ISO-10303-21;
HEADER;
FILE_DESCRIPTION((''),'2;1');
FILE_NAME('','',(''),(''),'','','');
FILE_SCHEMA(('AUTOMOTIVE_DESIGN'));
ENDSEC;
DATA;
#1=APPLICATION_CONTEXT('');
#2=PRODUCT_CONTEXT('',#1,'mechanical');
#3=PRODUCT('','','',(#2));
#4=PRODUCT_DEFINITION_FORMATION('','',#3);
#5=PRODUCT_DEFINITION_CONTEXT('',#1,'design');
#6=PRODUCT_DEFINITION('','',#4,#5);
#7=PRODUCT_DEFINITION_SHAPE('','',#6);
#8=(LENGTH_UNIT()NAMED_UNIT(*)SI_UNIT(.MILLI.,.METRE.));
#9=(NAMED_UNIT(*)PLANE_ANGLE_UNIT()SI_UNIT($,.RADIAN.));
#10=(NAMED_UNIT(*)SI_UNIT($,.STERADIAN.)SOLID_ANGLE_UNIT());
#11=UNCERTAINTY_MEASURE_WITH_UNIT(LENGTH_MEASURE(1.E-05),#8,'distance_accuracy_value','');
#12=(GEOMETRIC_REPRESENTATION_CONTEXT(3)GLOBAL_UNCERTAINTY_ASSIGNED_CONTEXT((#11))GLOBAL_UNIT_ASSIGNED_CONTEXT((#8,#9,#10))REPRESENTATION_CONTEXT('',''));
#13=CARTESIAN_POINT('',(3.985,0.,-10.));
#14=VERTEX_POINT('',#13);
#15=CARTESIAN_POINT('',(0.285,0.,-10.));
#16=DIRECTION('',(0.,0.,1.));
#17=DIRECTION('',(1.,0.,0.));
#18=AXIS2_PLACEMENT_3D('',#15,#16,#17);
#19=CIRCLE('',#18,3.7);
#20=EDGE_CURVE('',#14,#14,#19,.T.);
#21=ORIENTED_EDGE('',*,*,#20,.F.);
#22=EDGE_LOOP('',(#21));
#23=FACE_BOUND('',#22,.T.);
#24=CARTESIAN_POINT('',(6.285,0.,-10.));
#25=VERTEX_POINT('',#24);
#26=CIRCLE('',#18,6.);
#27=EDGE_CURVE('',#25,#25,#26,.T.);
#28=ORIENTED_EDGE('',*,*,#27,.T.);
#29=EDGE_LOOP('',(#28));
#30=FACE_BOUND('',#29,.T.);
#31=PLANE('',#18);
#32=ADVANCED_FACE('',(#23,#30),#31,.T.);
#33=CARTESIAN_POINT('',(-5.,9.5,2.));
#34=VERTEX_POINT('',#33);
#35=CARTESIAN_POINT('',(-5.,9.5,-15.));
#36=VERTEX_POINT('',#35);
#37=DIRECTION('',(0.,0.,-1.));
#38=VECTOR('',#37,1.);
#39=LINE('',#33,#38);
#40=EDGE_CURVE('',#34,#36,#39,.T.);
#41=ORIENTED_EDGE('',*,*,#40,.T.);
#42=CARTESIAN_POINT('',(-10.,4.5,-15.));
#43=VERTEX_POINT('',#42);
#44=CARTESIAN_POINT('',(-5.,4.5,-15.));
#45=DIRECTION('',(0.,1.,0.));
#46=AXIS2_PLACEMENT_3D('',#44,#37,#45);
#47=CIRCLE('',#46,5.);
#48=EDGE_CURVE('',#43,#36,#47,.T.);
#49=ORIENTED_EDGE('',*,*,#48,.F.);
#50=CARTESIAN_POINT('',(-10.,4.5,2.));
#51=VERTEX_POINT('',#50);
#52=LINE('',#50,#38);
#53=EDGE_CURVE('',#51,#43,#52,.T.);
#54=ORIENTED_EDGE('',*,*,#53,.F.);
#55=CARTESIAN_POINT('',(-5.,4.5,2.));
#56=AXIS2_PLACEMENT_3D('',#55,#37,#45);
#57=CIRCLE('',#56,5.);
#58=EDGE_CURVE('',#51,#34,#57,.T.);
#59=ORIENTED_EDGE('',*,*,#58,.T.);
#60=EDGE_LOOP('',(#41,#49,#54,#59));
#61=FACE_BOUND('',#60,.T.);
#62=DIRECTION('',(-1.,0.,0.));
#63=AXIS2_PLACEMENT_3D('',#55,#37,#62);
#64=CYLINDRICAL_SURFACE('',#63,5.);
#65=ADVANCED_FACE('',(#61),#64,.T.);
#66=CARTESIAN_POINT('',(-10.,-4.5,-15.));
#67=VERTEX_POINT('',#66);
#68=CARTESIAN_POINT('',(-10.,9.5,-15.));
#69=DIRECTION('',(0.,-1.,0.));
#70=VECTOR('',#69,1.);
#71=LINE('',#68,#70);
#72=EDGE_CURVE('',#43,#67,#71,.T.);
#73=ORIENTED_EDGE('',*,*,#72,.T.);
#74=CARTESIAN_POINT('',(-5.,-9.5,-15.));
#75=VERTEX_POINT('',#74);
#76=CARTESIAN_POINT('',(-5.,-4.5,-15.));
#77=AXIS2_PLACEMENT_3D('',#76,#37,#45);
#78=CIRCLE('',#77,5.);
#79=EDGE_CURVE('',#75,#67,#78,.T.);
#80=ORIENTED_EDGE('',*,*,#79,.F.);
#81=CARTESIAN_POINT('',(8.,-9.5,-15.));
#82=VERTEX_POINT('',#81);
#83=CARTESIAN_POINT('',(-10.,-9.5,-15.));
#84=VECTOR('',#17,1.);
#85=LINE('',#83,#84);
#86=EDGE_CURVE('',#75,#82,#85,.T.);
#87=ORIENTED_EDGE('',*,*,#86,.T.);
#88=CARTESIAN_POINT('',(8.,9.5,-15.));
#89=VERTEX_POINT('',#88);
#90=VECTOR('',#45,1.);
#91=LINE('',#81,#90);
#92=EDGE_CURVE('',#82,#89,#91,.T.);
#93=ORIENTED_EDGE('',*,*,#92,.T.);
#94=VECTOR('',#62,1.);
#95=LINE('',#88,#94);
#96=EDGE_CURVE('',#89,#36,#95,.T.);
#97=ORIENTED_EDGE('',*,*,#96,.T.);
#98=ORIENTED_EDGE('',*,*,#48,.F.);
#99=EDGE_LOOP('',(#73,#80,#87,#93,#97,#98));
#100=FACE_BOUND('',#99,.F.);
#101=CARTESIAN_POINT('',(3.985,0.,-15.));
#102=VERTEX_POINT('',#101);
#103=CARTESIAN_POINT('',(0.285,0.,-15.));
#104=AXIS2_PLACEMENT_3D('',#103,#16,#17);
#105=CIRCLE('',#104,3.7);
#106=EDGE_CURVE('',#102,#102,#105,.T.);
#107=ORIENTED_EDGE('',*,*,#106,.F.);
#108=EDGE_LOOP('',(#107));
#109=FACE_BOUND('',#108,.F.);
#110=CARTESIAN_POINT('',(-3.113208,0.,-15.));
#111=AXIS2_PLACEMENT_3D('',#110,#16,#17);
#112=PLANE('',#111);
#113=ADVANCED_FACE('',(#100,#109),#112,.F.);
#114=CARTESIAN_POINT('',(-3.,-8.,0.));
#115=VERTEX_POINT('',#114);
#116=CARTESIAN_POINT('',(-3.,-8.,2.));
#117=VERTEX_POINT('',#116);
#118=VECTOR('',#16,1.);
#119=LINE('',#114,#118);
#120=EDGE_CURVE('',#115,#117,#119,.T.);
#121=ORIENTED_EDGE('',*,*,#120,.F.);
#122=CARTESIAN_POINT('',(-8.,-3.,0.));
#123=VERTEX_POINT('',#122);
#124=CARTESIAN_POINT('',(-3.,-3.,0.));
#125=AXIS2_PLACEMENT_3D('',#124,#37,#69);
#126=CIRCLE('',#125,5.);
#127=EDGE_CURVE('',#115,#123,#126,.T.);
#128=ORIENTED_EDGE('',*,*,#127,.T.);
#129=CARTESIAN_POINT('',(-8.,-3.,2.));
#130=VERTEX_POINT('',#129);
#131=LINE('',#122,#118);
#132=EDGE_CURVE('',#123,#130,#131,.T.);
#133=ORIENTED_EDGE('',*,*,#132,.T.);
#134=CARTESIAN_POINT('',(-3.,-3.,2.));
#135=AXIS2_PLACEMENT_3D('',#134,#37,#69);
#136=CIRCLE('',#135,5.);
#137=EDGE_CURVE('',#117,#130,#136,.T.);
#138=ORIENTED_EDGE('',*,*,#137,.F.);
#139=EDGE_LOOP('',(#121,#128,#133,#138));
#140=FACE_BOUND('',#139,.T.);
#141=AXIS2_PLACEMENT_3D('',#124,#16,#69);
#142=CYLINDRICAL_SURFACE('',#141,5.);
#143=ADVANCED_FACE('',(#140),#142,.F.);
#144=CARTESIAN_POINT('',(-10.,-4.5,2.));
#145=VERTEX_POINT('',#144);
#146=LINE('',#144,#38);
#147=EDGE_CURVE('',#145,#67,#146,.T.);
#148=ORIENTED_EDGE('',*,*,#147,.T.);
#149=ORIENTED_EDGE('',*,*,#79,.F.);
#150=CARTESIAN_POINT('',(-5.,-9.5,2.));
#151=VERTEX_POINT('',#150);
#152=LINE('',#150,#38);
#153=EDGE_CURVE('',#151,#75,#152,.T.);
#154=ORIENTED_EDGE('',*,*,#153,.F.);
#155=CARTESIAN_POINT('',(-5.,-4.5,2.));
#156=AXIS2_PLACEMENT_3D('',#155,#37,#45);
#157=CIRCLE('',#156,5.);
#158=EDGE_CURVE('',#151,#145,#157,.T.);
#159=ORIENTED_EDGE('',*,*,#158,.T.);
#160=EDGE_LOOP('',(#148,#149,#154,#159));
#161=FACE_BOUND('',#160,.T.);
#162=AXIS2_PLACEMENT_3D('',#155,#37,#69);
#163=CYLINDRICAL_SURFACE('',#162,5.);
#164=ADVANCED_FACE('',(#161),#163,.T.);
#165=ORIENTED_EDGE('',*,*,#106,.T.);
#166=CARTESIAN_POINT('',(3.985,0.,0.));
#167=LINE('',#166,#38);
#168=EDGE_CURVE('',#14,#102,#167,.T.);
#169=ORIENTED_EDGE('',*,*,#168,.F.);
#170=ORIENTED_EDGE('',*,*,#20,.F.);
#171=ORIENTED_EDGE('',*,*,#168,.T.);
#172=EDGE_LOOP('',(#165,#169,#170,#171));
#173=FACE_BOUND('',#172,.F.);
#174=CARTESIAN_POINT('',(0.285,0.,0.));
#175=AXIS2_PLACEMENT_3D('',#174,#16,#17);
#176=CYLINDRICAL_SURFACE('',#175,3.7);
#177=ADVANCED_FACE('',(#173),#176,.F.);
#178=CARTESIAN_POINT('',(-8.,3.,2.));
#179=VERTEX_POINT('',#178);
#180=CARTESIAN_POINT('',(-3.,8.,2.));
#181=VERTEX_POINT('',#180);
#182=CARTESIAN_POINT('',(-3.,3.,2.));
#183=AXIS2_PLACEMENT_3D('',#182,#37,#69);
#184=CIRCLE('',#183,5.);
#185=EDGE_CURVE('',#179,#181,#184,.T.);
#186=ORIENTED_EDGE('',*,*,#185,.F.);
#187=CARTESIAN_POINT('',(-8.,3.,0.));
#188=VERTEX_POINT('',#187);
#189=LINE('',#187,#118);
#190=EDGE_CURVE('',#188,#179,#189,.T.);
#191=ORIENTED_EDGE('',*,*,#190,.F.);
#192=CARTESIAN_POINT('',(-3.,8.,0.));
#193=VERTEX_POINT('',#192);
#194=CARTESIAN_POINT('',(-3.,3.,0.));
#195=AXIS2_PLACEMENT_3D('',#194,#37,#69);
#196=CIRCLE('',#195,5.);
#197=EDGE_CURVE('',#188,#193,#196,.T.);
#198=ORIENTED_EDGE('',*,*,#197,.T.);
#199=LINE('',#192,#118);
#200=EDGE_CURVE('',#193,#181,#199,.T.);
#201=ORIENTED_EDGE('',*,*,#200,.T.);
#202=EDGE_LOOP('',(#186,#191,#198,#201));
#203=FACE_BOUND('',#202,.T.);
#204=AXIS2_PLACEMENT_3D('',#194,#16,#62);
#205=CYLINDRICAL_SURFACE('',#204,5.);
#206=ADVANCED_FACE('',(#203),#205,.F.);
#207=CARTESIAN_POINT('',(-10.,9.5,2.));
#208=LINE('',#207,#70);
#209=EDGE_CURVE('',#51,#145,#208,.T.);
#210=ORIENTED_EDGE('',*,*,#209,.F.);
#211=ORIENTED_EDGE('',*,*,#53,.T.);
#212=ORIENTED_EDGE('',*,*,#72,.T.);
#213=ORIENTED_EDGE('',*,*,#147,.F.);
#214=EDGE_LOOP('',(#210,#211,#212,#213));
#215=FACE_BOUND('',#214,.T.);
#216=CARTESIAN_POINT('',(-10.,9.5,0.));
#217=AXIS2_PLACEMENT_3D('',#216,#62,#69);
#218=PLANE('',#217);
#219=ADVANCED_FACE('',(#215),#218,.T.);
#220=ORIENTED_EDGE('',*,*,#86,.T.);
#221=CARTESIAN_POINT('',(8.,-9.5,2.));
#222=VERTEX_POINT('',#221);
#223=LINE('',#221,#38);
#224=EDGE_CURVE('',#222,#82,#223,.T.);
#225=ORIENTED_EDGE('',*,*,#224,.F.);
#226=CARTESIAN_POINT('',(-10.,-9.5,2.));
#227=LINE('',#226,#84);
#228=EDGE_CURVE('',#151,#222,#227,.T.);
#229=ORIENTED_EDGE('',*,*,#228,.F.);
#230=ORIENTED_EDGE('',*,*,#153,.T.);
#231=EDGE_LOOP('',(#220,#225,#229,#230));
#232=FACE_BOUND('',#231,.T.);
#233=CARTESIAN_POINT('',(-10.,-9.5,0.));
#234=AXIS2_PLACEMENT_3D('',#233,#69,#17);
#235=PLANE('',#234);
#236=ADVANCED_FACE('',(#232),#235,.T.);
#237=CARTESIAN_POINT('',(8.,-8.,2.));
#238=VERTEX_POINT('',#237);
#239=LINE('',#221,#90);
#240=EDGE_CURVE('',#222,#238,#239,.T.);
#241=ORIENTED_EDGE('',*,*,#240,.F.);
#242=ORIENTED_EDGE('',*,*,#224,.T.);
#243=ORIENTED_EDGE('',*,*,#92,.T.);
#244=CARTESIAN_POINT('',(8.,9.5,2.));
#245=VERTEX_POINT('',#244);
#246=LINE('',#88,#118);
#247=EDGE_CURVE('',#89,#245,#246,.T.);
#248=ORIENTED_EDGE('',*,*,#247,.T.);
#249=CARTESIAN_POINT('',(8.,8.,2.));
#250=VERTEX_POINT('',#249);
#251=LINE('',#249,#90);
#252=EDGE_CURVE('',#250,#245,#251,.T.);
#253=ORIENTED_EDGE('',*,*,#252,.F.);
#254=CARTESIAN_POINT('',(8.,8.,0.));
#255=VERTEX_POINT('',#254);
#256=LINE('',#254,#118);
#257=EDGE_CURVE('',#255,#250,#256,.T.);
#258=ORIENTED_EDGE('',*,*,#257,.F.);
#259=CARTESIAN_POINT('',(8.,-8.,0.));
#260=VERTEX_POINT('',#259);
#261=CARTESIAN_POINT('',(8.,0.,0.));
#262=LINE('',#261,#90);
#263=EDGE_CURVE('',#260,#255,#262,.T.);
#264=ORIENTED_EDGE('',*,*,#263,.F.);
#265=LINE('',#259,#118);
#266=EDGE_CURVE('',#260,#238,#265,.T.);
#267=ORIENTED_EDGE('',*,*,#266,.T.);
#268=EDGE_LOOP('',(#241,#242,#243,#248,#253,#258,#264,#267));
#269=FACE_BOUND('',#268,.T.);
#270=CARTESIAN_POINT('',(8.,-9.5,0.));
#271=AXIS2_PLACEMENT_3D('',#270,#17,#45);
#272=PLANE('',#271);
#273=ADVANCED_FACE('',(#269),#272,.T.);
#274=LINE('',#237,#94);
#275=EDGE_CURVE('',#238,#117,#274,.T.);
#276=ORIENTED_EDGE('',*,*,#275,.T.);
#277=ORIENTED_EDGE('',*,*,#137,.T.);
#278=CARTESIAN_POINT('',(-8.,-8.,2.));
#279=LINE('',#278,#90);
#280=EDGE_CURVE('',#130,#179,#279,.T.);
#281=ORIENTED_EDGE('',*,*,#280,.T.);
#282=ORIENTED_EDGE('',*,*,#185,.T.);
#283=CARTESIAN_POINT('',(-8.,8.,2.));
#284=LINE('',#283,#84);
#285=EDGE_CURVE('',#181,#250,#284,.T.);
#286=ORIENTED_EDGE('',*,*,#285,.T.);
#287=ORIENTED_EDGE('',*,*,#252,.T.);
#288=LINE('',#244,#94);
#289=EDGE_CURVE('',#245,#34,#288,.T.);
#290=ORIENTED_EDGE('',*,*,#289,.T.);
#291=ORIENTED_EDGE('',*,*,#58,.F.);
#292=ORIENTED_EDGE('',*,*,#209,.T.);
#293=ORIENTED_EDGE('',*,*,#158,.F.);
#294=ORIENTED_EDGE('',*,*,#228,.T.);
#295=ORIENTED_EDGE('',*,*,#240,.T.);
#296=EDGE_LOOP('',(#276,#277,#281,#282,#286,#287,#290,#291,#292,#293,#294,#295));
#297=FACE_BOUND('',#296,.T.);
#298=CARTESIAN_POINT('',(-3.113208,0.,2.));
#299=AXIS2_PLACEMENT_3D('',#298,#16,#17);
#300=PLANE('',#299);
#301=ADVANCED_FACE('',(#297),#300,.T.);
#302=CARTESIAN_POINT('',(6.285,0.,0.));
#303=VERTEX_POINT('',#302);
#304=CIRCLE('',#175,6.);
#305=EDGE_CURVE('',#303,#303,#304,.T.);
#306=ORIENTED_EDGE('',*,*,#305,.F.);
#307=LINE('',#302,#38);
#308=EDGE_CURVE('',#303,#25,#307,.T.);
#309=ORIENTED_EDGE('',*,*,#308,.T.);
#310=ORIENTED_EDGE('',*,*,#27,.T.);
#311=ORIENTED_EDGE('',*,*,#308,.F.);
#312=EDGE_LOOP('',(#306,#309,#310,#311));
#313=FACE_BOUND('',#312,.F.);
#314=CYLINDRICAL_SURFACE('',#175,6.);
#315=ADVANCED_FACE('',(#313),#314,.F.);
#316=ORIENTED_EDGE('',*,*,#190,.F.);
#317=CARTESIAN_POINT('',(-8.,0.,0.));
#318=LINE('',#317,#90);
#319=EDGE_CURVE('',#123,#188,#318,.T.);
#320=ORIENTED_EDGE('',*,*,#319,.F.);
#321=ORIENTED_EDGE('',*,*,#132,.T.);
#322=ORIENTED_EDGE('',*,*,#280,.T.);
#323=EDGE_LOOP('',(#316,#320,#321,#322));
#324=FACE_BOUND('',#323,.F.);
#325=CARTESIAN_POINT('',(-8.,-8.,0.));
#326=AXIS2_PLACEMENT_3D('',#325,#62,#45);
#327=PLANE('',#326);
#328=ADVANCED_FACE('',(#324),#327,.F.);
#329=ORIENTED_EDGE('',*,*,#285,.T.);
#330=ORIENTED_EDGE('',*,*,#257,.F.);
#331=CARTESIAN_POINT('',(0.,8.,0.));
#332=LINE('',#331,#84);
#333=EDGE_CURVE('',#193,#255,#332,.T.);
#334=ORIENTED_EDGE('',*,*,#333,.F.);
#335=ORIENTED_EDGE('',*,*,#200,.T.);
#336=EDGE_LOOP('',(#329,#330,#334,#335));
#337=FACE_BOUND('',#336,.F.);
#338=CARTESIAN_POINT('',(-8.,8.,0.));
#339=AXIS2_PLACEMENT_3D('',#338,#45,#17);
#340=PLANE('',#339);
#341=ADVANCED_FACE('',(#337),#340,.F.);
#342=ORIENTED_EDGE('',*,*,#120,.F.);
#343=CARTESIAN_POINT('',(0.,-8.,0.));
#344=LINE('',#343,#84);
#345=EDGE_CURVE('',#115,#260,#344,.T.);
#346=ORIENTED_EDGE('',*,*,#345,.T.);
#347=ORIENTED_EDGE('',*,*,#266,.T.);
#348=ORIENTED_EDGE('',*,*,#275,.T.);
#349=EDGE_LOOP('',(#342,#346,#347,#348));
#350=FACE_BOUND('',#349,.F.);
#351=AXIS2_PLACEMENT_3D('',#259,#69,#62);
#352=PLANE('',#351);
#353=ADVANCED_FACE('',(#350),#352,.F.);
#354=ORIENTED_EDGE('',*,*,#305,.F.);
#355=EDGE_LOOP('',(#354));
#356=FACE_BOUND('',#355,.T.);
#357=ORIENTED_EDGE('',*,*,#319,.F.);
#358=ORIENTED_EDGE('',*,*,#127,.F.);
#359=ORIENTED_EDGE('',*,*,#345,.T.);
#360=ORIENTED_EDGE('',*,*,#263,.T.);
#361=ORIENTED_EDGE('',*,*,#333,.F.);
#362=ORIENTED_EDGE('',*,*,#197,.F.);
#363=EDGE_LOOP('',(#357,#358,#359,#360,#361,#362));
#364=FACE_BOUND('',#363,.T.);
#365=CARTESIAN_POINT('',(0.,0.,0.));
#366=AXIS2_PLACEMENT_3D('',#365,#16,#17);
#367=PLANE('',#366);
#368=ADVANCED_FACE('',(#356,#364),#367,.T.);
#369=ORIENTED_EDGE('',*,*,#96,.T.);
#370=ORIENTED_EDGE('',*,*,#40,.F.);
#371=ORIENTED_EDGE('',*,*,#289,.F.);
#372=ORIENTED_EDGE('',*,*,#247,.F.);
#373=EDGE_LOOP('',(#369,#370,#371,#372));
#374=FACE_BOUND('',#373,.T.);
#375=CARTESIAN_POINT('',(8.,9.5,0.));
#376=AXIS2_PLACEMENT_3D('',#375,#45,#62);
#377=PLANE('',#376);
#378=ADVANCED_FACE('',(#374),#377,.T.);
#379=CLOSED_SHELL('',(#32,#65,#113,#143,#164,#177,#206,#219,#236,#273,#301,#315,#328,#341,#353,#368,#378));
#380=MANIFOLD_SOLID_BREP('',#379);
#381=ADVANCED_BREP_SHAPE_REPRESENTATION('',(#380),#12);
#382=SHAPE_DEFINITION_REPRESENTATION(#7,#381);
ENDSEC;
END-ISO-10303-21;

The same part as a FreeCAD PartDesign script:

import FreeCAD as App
import Part
import Sketcher
from FreeCAD import Vector


def edges_at(feature, points):
    """Names of the edges that pass closest to the given points."""
    edges = feature.Shape.Edges
    near = lambda p: min(range(len(edges)), key=lambda i: edges[i].distToShape(Part.Vertex(*p))[0])
    return sorted({f"Edge{near(p) + 1}" for p in points})

doc = App.newDocument("Part")
params = doc.addObject("Spreadsheet::Sheet", "Params")
for row, (alias, value) in enumerate([
    ("sketch1_diameter", "7.4 mm"),
    ("sketch1_width", "16 mm"),
    ("pad1_length", "15 mm"),
    ("sketch2_width", "16 mm"),
    ("sketch2_width2", "18 mm"),
    ("sketch2_height", "19 mm"),
    ("pad2_length", "2 mm"),
    ("pad2_length2", "15 mm"),
    ("fillet_radius", "5 mm"),
    ("sketch3_diameter", "12 mm"),
    ("sketch3_diameter2", "7.4 mm"),
    ("pocket1_length", "10 mm"),
], start=1):
    params.set(f"A{row}", alias)
    params.set(f"B{row}", "=" + value)
    params.setAlias(f"B{row}", alias)

body = doc.addObject("PartDesign::Body", "Body")

# Sketch on XY plane
sketch1 = doc.addObject("Sketcher::SketchObject", "Sketch")
body.addObject(sketch1)
sketch1.AttachmentSupport = (doc.XY_Plane, [""])
sketch1.MapMode = "FlatFace"
sketch1.addGeometry([
    Part.LineSegment(Vector(-8, 8, 0), Vector(-8, -8, 0)),  # 0
    Part.LineSegment(Vector(-8, -8, 0), Vector(8, -8, 0)),  # 1
    Part.LineSegment(Vector(8, -8, 0), Vector(8, 8, 0)),  # 2
    Part.LineSegment(Vector(8, 8, 0), Vector(-8, 8, 0)),  # 3
    Part.Circle(Vector(0.3, 0, 0), Vector(0, 0, 1), 3.7),  # 4
], False)
sketch1.addConstraint([
    Sketcher.Constraint("Coincident", 0, 2, 1, 1),
    Sketcher.Constraint("Coincident", 1, 2, 2, 1),
    Sketcher.Constraint("Coincident", 2, 2, 3, 1),
    Sketcher.Constraint("Coincident", 3, 2, 0, 1),
    Sketcher.Constraint("Vertical", 0),
    Sketcher.Constraint("Horizontal", 1),
    Sketcher.Constraint("Vertical", 2),
    Sketcher.Constraint("Horizontal", 3),
    Sketcher.Constraint("Symmetric", 0, 2, 2, 2, -1, 1),
    Sketcher.Constraint("PointOnObject", 4, 3, -1),
    Sketcher.Constraint("Equal", 3, 0),
    Sketcher.Constraint("Diameter", 4, 7.4),
    Sketcher.Constraint("DistanceX", 1, 1, 1, 2, 16.0),
    Sketcher.Constraint("DistanceX", -1, 1, 4, 3, 0.285),
])
sketch1.setExpression("Constraints[11]", "Params.sketch1_diameter")
sketch1.setExpression("Constraints[12]", "Params.sketch1_width")
pad1 = doc.addObject("PartDesign::Pad", "Pad")
body.addObject(pad1)
pad1.Profile = sketch1
pad1.setExpression("Length", "Params.pad1_length")
pad1.Reversed = True

# Sketch on XY plane
sketch2 = doc.addObject("Sketcher::SketchObject", "Sketch001")
body.addObject(sketch2)
sketch2.AttachmentSupport = (doc.XY_Plane, [""])
sketch2.MapMode = "FlatFace"
sketch2.addGeometry([
    Part.LineSegment(Vector(8, -9.5, 0), Vector(8, -8, 0)),  # 0
    Part.LineSegment(Vector(8, -8, 0), Vector(-8, -8, 0)),  # 1
    Part.LineSegment(Vector(-8, -8, 0), Vector(-8, 8, 0)),  # 2
    Part.LineSegment(Vector(-8, 8, 0), Vector(8, 8, 0)),  # 3
    Part.LineSegment(Vector(8, 8, 0), Vector(8, 9.5, 0)),  # 4
    Part.LineSegment(Vector(8, 9.5, 0), Vector(-10, 9.5, 0)),  # 5
    Part.LineSegment(Vector(-10, 9.5, 0), Vector(-10, -9.5, 0)),  # 6
    Part.LineSegment(Vector(-10, -9.5, 0), Vector(8, -9.5, 0)),  # 7
], False)
sketch2.addConstraint([
    Sketcher.Constraint("Coincident", 0, 2, 1, 1),
    Sketcher.Constraint("Coincident", 1, 2, 2, 1),
    Sketcher.Constraint("Coincident", 2, 2, 3, 1),
    Sketcher.Constraint("Coincident", 3, 2, 4, 1),
    Sketcher.Constraint("Coincident", 4, 2, 5, 1),
    Sketcher.Constraint("Coincident", 5, 2, 6, 1),
    Sketcher.Constraint("Coincident", 6, 2, 7, 1),
    Sketcher.Constraint("Coincident", 7, 2, 0, 1),
    Sketcher.Constraint("Vertical", 0),
    Sketcher.Constraint("Horizontal", 1),
    Sketcher.Constraint("Vertical", 2),
    Sketcher.Constraint("Horizontal", 3),
    Sketcher.Constraint("Vertical", 4),
    Sketcher.Constraint("Horizontal", 5),
    Sketcher.Constraint("Vertical", 6),
    Sketcher.Constraint("Horizontal", 7),
    Sketcher.Constraint("Symmetric", 0, 2, 2, 2, -1, 1),
    Sketcher.Constraint("Symmetric", 4, 2, 7, 2, -1),
    Sketcher.Constraint("Equal", 3, 2),
    Sketcher.Constraint("DistanceX", 1, 2, 1, 1, 16.0),
    Sketcher.Constraint("DistanceX", 5, 2, 5, 1, 18.0),
    Sketcher.Constraint("DistanceY", 6, 2, 6, 1, 19.0),
])
sketch2.setExpression("Constraints[19]", "Params.sketch2_width")
sketch2.setExpression("Constraints[20]", "Params.sketch2_width2")
sketch2.setExpression("Constraints[21]", "Params.sketch2_height")
pad2 = doc.addObject("PartDesign::Pad", "Pad001")
body.addObject(pad2)
pad2.Profile = sketch2
pad2.Type = "TwoLengths"
pad2.setExpression("Length", "Params.pad2_length")
pad2.setExpression("Length2", "Params.pad2_length2")
doc.recompute()

fillet = doc.addObject("PartDesign::Fillet", "Fillet")
body.addObject(fillet)
fillet.Base = (pad2, edges_at(pad2, [
    (-8, 8, 1),
    (-8, -8, 1),
    (-10, 9.5, -6.5),
    (-10, -9.5, -6.5),
]))
fillet.setExpression("Radius", "Params.fillet_radius")

# Sketch on XY plane
sketch3 = doc.addObject("Sketcher::SketchObject", "Sketch002")
body.addObject(sketch3)
sketch3.AttachmentSupport = (doc.XY_Plane, [""])
sketch3.MapMode = "FlatFace"
sketch3.addGeometry([
    Part.Circle(Vector(0.3, 0, 0), Vector(0, 0, 1), 6),
    Part.Circle(Vector(0.3, 0, 0), Vector(0, 0, 1), 3.7),
], False)
sketch3.addConstraint([
    Sketcher.Constraint("Coincident", 1, 3, 0, 3),
    Sketcher.Constraint("PointOnObject", 0, 3, -1),
    Sketcher.Constraint("Diameter", 0, 12.0),
    Sketcher.Constraint("Diameter", 1, 7.4),
    Sketcher.Constraint("DistanceX", -1, 1, 0, 3, 0.285),
])
sketch3.setExpression("Constraints[2]", "Params.sketch3_diameter")
sketch3.setExpression("Constraints[3]", "Params.sketch3_diameter2")
pocket1 = doc.addObject("PartDesign::Pocket", "Pocket")
body.addObject(pocket1)
pocket1.Profile = sketch3
pocket1.setExpression("Length", "Params.pocket1_length")

doc.recompute()
